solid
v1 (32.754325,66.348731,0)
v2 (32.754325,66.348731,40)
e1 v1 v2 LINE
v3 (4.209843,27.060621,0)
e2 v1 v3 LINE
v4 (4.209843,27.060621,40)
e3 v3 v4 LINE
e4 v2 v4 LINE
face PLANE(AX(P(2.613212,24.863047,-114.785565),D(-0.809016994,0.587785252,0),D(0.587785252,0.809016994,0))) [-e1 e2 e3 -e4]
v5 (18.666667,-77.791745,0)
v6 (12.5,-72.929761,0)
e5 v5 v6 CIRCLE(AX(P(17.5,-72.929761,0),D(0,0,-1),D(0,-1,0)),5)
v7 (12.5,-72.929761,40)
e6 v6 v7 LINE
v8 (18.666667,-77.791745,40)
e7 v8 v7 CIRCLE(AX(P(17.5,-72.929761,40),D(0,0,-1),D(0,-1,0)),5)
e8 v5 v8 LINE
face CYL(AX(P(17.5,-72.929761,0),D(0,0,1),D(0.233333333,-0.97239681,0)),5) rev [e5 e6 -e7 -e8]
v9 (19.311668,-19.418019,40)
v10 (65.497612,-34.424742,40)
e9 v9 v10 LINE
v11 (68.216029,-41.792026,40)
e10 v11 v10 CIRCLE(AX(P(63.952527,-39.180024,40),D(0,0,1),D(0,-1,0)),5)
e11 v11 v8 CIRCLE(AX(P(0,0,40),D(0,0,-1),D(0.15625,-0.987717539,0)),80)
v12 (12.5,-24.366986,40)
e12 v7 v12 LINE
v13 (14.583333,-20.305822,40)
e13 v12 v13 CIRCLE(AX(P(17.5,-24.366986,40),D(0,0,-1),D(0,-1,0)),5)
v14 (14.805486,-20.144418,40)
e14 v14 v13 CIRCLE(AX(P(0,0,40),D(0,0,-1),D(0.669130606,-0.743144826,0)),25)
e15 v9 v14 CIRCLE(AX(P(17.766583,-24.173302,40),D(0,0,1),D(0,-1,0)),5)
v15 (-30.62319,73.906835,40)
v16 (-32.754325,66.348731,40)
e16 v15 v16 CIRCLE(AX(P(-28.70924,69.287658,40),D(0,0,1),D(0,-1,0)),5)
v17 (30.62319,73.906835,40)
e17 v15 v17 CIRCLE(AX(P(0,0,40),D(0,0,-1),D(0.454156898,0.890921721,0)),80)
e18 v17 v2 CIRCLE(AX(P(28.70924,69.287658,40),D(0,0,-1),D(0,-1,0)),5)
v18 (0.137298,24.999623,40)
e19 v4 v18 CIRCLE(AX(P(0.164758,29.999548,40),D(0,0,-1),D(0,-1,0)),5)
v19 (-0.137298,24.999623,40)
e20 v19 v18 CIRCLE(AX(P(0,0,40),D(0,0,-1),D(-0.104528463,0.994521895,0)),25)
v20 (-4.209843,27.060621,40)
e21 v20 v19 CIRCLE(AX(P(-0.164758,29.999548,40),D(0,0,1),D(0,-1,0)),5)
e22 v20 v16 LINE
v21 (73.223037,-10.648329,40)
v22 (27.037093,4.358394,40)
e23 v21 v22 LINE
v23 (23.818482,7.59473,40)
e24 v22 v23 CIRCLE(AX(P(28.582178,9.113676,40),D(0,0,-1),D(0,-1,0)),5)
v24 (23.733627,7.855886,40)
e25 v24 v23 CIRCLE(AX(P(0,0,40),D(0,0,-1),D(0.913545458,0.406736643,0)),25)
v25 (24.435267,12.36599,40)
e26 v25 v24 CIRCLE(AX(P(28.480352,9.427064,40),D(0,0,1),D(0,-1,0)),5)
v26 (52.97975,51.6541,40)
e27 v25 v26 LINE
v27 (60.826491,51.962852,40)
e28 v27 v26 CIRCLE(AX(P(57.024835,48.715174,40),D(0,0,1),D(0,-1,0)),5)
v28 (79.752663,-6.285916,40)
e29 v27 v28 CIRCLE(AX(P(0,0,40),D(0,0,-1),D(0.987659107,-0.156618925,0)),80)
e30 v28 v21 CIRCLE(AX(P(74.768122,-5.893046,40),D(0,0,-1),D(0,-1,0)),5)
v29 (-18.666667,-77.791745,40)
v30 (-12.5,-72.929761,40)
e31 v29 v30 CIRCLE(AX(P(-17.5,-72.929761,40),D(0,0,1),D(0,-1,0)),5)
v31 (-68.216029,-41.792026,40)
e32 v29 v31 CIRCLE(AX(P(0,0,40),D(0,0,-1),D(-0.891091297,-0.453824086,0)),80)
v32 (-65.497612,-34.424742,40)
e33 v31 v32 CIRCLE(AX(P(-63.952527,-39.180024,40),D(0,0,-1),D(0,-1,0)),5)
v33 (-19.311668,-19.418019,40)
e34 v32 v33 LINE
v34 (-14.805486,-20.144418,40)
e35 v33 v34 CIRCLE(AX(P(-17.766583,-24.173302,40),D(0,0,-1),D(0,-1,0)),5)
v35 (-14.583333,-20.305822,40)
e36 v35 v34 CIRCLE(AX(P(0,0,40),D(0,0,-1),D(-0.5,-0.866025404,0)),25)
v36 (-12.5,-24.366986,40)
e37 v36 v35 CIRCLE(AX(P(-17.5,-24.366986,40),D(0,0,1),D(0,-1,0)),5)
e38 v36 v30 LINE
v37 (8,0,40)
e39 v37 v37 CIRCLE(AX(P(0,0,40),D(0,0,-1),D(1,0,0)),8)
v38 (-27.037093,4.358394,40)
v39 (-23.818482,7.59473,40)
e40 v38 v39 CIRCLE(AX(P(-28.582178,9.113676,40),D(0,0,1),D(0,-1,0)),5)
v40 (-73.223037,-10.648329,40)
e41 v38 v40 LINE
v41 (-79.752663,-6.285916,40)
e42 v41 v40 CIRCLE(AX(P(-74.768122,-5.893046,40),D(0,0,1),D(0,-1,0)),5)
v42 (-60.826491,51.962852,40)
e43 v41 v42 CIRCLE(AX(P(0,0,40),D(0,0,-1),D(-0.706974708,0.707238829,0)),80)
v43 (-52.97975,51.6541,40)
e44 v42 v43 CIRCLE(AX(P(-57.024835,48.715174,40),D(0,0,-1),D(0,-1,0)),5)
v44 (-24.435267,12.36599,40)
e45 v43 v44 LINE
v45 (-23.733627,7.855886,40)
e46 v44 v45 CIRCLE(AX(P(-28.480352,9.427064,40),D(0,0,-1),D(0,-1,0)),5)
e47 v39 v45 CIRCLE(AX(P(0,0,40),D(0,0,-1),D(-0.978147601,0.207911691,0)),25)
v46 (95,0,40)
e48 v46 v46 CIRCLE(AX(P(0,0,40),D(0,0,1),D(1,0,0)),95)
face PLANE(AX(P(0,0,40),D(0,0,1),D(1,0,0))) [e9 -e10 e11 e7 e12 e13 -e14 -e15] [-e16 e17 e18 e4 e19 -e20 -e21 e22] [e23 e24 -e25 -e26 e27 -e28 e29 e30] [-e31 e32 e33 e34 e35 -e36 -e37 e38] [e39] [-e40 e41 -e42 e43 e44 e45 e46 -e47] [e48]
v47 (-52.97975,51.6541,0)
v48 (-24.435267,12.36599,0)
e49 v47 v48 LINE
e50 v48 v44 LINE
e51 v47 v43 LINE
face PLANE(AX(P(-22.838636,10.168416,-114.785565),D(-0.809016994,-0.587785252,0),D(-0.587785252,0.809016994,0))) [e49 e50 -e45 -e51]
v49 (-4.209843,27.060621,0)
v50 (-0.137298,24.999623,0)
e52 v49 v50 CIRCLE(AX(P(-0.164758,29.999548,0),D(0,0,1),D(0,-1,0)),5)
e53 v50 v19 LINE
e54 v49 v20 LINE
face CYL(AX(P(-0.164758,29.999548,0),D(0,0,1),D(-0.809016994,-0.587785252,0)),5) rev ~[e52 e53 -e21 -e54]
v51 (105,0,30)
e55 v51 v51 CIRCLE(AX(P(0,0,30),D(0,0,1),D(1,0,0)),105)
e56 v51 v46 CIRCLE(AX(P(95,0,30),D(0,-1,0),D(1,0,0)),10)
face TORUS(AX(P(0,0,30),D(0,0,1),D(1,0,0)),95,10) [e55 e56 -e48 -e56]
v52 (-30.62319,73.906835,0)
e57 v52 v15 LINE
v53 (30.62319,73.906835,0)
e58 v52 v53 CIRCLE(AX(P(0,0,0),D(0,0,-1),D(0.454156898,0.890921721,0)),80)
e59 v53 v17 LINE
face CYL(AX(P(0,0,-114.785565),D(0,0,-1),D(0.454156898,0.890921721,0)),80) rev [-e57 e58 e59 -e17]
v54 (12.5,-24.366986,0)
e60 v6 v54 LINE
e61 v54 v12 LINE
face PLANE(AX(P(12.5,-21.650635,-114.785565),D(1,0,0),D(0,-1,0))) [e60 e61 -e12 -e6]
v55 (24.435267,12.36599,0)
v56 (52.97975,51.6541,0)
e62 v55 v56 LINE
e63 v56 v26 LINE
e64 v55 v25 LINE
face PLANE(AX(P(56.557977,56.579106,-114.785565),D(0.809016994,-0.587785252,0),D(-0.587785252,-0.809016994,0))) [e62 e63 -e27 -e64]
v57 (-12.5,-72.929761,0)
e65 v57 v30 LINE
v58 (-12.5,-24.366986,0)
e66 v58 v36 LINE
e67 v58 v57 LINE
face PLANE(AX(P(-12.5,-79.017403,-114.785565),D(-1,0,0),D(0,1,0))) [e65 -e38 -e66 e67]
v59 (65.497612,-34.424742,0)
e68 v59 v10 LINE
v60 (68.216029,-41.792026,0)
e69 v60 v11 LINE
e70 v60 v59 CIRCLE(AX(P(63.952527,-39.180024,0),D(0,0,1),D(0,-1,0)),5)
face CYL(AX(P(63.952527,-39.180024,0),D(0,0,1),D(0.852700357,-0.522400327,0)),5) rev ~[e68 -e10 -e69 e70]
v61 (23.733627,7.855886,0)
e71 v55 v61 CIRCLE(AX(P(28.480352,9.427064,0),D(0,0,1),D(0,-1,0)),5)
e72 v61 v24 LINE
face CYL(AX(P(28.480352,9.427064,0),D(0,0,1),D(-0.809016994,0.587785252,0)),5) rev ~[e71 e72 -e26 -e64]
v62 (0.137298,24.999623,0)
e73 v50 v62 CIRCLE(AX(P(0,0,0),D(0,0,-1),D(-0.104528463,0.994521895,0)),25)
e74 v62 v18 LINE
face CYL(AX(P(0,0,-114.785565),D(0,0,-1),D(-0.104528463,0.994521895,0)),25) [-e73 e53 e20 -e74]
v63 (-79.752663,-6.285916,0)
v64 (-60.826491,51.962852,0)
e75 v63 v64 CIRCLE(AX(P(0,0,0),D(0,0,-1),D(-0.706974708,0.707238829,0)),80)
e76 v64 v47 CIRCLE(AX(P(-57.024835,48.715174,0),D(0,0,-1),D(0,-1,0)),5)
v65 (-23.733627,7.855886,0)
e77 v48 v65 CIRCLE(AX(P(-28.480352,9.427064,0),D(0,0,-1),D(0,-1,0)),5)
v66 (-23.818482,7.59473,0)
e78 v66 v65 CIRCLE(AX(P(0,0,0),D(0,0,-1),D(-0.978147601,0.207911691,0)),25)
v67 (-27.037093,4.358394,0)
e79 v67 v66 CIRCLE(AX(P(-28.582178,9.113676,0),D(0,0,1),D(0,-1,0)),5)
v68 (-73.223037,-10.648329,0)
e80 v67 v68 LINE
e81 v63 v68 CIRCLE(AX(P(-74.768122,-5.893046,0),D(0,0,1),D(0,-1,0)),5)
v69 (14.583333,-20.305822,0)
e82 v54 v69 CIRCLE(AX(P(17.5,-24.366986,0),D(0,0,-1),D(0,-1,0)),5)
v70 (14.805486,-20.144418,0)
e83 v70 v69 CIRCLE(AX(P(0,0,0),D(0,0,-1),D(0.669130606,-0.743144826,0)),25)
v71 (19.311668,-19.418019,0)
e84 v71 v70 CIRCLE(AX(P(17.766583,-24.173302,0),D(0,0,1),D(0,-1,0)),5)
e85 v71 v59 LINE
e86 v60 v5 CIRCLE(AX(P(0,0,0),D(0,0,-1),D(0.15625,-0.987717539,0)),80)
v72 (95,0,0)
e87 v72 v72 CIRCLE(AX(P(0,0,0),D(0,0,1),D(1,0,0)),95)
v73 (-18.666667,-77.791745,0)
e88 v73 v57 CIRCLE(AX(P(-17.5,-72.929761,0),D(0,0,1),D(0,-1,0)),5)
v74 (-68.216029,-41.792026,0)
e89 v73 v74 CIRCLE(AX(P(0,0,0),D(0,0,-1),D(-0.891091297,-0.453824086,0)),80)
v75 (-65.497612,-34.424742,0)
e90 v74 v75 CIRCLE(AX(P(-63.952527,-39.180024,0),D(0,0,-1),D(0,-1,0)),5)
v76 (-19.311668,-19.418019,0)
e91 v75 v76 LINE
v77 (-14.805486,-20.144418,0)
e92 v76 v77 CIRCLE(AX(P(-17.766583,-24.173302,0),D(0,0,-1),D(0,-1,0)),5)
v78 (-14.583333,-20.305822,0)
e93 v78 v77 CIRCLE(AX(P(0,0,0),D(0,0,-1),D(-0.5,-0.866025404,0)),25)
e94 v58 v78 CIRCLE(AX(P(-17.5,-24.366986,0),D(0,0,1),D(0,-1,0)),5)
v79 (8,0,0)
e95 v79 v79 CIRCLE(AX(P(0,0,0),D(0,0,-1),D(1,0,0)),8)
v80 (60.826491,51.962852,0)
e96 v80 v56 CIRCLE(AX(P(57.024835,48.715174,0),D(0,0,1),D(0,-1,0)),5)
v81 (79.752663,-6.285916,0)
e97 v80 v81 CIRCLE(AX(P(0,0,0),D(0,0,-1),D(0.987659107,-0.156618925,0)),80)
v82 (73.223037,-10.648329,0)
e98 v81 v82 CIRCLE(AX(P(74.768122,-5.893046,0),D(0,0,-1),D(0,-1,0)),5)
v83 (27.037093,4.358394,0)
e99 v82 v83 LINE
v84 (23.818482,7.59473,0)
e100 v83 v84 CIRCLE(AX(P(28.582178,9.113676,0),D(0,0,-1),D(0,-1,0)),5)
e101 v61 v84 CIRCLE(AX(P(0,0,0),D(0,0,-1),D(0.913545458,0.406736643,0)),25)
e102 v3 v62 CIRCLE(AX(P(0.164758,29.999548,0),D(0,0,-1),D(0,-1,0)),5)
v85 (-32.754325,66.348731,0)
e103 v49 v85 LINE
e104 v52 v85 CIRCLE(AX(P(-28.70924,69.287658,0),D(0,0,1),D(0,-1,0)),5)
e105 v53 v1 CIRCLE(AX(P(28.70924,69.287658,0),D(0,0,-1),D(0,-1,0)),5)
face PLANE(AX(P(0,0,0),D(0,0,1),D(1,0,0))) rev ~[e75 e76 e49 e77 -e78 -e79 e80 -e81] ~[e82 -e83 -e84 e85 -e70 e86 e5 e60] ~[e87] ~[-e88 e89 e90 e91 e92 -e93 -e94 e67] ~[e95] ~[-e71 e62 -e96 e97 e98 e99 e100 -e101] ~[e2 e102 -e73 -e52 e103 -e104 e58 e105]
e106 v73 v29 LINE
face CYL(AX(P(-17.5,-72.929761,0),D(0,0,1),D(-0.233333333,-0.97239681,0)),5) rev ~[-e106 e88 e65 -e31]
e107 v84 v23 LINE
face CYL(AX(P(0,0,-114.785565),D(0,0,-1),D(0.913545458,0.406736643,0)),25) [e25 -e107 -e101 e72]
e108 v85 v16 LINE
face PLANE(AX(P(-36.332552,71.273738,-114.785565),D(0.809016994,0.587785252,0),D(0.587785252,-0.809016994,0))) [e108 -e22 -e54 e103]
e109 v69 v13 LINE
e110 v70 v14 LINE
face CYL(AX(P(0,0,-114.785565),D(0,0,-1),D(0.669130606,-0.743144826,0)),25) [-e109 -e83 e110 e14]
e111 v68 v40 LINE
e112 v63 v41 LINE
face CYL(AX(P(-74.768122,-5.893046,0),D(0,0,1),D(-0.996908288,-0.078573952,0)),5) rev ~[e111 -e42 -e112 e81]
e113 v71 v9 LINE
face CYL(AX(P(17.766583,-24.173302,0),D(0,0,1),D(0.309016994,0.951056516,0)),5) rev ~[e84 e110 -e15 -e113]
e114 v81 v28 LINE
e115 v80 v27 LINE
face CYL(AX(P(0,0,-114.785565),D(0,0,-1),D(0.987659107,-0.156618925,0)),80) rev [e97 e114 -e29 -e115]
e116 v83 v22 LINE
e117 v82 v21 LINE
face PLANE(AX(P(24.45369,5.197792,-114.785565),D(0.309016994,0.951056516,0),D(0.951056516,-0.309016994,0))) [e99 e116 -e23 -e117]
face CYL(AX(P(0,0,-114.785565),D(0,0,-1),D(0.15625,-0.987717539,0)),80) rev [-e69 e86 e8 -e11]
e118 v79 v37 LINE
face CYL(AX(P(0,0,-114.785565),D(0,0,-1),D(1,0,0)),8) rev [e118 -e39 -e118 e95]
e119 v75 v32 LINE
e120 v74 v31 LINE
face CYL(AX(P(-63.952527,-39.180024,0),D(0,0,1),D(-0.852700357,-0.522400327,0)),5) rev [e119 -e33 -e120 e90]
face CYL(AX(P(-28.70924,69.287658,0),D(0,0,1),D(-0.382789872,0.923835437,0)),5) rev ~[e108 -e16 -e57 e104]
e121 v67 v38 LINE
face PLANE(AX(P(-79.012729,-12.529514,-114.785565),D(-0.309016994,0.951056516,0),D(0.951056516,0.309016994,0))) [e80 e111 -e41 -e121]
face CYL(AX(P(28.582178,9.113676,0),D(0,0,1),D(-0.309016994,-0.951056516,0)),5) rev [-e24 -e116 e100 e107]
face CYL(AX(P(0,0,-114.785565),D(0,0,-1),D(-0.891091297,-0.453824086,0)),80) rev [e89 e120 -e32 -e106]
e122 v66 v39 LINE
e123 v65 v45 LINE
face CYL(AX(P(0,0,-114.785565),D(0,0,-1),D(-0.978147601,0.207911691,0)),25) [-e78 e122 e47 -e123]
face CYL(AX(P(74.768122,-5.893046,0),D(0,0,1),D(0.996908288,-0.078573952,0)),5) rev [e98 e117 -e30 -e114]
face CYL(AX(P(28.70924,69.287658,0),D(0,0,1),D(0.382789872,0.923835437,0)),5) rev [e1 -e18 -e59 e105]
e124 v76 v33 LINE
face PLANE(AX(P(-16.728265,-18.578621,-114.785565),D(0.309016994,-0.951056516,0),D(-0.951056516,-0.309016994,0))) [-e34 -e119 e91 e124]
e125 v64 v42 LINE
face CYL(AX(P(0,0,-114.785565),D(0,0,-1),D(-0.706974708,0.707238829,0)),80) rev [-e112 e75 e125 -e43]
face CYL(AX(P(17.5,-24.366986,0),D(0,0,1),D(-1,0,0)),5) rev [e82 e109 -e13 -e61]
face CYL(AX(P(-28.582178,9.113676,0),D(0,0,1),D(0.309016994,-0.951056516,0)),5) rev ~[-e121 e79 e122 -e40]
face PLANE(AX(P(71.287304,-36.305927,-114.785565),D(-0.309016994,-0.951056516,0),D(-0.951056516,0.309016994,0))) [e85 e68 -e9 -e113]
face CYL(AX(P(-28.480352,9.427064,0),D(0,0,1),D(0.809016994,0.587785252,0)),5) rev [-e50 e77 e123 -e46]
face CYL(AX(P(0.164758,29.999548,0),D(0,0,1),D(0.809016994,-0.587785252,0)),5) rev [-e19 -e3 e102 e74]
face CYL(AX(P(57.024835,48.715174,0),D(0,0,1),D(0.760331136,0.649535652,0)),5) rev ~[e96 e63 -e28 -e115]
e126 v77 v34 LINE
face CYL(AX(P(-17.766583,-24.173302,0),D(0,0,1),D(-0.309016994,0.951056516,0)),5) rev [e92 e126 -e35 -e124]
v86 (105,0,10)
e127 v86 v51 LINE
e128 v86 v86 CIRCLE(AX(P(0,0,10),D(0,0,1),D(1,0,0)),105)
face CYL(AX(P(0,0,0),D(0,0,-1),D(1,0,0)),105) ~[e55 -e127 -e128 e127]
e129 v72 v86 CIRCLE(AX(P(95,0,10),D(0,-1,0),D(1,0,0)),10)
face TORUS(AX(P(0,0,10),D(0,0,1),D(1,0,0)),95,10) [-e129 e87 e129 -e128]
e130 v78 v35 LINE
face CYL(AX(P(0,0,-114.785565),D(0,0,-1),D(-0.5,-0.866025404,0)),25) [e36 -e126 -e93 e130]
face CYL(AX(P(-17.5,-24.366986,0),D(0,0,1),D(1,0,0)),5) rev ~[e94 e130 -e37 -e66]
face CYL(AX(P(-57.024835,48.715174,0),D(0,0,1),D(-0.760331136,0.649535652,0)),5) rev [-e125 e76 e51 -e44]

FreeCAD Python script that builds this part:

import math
import FreeCAD as App
import Part
import Sketcher
Q = App.Units.Quantity


def edges_at(feature, points):
    """Names of the edges that pass closest to the given points."""
    edges = feature.Shape.Edges
    near = lambda p: min(range(len(edges)), key=lambda i: edges[i].distToShape(Part.Vertex(*p))[0])
    return sorted({f"Edge{near(p) + 1}" for p in points})

doc = App.newDocument("Part")
params = doc.addObject("Spreadsheet::Sheet", "Params")
for row, (alias, value) in enumerate([
    ("sketch1_diameter", "210 mm"),
    ("pad1_length", "40 mm"),
    ("sketch2_radius", "80 mm"),
    ("sketch2_radius2", "25 mm"),
    ("sketch3_diameter", "16 mm"),
    ("fillet_radius", "5 mm"),
    ("fillet2_radius", "10 mm"),
], start=1):
    params.set(f"A{row}", alias)
    params.set(f"B{row}", "=" + value)
    params.setAlias(f"B{row}", alias)

body = doc.addObject("PartDesign::Body", "Body")

sketch1 = body.newObject("Sketcher::SketchObject", "Sketch")
sketch1.AttachmentSupport = (doc.getObject("XY_Plane"), [""])
sketch1.MapMode = "FlatFace"
sketch1.addGeometry(Part.Circle(App.Vector(0, 0, 0), App.Vector(0, 0, 1), 105), False)
sketch1.addConstraint([
    Sketcher.Constraint("Coincident", 0, 3, -1, 1),
    Sketcher.Constraint("Diameter", 0, 210.0),
])
sketch1.setExpression("Constraints[1]", "Params.sketch1_diameter")
pad1 = body.newObject("PartDesign::Pad", "Pad")
pad1.Profile = sketch1
pad1.setExpression("Length", "Params.pad1_length")

sketch2 = body.newObject("Sketcher::SketchObject", "Sketch001")
sketch2.AttachmentSupport = (doc.getObject("XY_Plane"), [""])
sketch2.MapMode = "FlatFace"
sketch2.AttachmentOffset = App.Placement(App.Vector(0, 0, 40), App.Rotation())
sketch2.addGeometry([
    Part.LineSegment(App.Vector(2.613212, 24.863047, 0), App.Vector(36.332552, 71.273738, 0)),
    Part.ArcOfCircle(Part.Circle(App.Vector(0, 0, 0), App.Vector(0, 0, 1), 80), math.radians(62.989299), math.radians(117.010701)),
    Part.LineSegment(App.Vector(-36.332552, 71.273738, 0), App.Vector(-2.613212, 24.863047, 0)),
    Part.ArcOfCircle(Part.Circle(App.Vector(0, 0, 0), App.Vector(0, 0, 1), 25), math.radians(84), math.radians(96)),
    Part.LineSegment(App.Vector(24.45369, 5.197792, 0), App.Vector(79.012729, -12.529514, 0)),
    Part.ArcOfCircle(Part.Circle(App.Vector(0, 0, 0), App.Vector(0, 0, 1), 80), math.radians(-9.010701), math.radians(45.010701)),
    Part.LineSegment(App.Vector(56.557977, 56.579106, 0), App.Vector(22.838636, 10.168416, 0)),
    Part.ArcOfCircle(Part.Circle(App.Vector(0, 0, 0), App.Vector(0, 0, 1), 25), math.radians(12), math.radians(24)),
    Part.LineSegment(App.Vector(12.5, -21.650635, 0), App.Vector(12.5, -79.017403, 0)),
    Part.ArcOfCircle(Part.Circle(App.Vector(0, 0, 0), App.Vector(0, 0, 1), 80), math.radians(-81.010701), math.radians(-26.989299)),
    Part.LineSegment(App.Vector(71.287304, -36.305927, 0), App.Vector(16.728265, -18.578621, 0)),
    Part.ArcOfCircle(Part.Circle(App.Vector(0, 0, 0), App.Vector(0, 0, 1), 25), math.radians(-60), math.radians(-48)),
    Part.LineSegment(App.Vector(-16.728265, -18.578621, 0), App.Vector(-71.287304, -36.305927, 0)),
    Part.ArcOfCircle(Part.Circle(App.Vector(0, 0, 0), App.Vector(0, 0, 1), 80), math.radians(-153.010701), math.radians(-98.989299)),
    Part.LineSegment(App.Vector(-12.5, -79.017403, 0), App.Vector(-12.5, -21.650635, 0)),
    Part.ArcOfCircle(Part.Circle(App.Vector(0, 0, 0), App.Vector(0, 0, 1), 25), math.radians(-132), math.radians(-120)),
    Part.LineSegment(App.Vector(-22.838636, 10.168416, 0), App.Vector(-56.557977, 56.579106, 0)),
    Part.ArcOfCircle(Part.Circle(App.Vector(0, 0, 0), App.Vector(0, 0, 1), 80), math.radians(134.989299), math.radians(189.010701)),
    Part.LineSegment(App.Vector(-79.012729, -12.529514, 0), App.Vector(-24.45369, 5.197792, 0)),
    Part.ArcOfCircle(Part.Circle(App.Vector(0, 0, 0), App.Vector(0, 0, 1), 25), math.radians(156), math.radians(168)),
], False)
sketch2.addConstraint([
    Sketcher.Constraint("Coincident", 0, 2, 1, 1),
    Sketcher.Constraint("Coincident", 1, 2, 2, 1),
    Sketcher.Constraint("Coincident", 2, 2, 3, 2),
    Sketcher.Constraint("Coincident", 3, 1, 0, 1),
    Sketcher.Constraint("Coincident", 4, 2, 5, 1),
    Sketcher.Constraint("Coincident", 5, 2, 6, 1),
    Sketcher.Constraint("Coincident", 6, 2, 7, 2),
    Sketcher.Constraint("Coincident", 7, 1, 4, 1),
    Sketcher.Constraint("Coincident", 8, 2, 9, 1),
    Sketcher.Constraint("Coincident", 9, 2, 10, 1),
    Sketcher.Constraint("Coincident", 10, 2, 11, 2),
    Sketcher.Constraint("Coincident", 11, 1, 8, 1),
    Sketcher.Constraint("Coincident", 12, 2, 13, 1),
    Sketcher.Constraint("Coincident", 13, 2, 14, 1),
    Sketcher.Constraint("Coincident", 14, 2, 15, 2),
    Sketcher.Constraint("Coincident", 15, 1, 12, 1),
    Sketcher.Constraint("Coincident", 16, 2, 17, 1),
    Sketcher.Constraint("Coincident", 17, 2, 18, 1),
    Sketcher.Constraint("Coincident", 18, 2, 19, 2),
    Sketcher.Constraint("Coincident", 19, 1, 16, 1),
    Sketcher.Constraint("Vertical", 8),
    Sketcher.Constraint("Vertical", 14),
    Sketcher.Constraint("Coincident", 1, 3, -1, 1),
    Sketcher.Constraint("Coincident", 3, 3, -1, 1),
    Sketcher.Constraint("Coincident", 5, 3, -1, 1),
    Sketcher.Constraint("Coincident", 7, 3, -1, 1),
    Sketcher.Constraint("Coincident", 9, 3, -1, 1),
    Sketcher.Constraint("Coincident", 11, 3, -1, 1),
    Sketcher.Constraint("Coincident", 13, 3, -1, 1),
    Sketcher.Constraint("Coincident", 15, 3, -1, 1),
    Sketcher.Constraint("Coincident", 17, 3, -1, 1),
    Sketcher.Constraint("Coincident", 19, 3, -1, 1),
    Sketcher.Constraint("Equal", 1, 5),
    Sketcher.Constraint("Equal", 3, 7),
    Sketcher.Constraint("Equal", 5, 9),
    Sketcher.Constraint("Equal", 7, 11),
    Sketcher.Constraint("Equal", 9, 13),
    Sketcher.Constraint("Equal", 11, 15),
    Sketcher.Constraint("Equal", 13, 17),
    Sketcher.Constraint("Equal", 15, 19),
    Sketcher.Constraint("Parallel", 0, 6),
    Sketcher.Constraint("Parallel", 4, 10),
    Sketcher.Constraint("Parallel", 2, 16),
    Sketcher.Constraint("Parallel", 12, 18),
    Sketcher.Constraint("Horizontal", 0, 2, 1, 2),
    Sketcher.Constraint("Horizontal", 2, 2, 3, 1),
    Sketcher.Constraint("Horizontal", 9, 2, 12, 2),
    Sketcher.Constraint("Horizontal", 8, 2, 13, 2),
    Sketcher.Constraint("Horizontal", 10, 2, 15, 1),
    Sketcher.Constraint("Horizontal", 5, 2, 16, 2),
    Sketcher.Constraint("Horizontal", 4, 2, 17, 2),
    Sketcher.Constraint("Equal", 2, 4),
    Sketcher.Constraint("Equal", 4, 6),
    Sketcher.Constraint("Equal", 6, 10),
    Sketcher.Constraint("Radius", 1, 80.0),
    Sketcher.Constraint("Radius", 3, 25.0),
    Sketcher.Constraint("Angle", 0, Q("54 deg")),
    Sketcher.Constraint("Angle", 4, Q("-18 deg")),
    Sketcher.Constraint("DistanceX", 13, 2, 8, 2, 25.0),
    Sketcher.Constraint("Distance", 0, 57.366768),
])
sketch2.setExpression("Constraints[54]", "Params.sketch2_radius")
sketch2.setExpression("Constraints[55]", "Params.sketch2_radius2")
pocket1 = body.newObject("PartDesign::Pocket", "Pocket")
pocket1.Profile = sketch2
pocket1.Type = "ThroughAll"
pocket1.Midplane = True

sketch3 = body.newObject("Sketcher::SketchObject", "Sketch002")
sketch3.AttachmentSupport = (doc.getObject("XY_Plane"), [""])
sketch3.MapMode = "FlatFace"
sketch3.AttachmentOffset = App.Placement(App.Vector(0, 0, 40), App.Rotation())
sketch3.addGeometry(Part.Circle(App.Vector(0, 0, 0), App.Vector(0, 0, 1), 8), False)
sketch3.addConstraint([
    Sketcher.Constraint("Coincident", 0, 3, -1, 1),
    Sketcher.Constraint("Diameter", 0, 16.0),
])
sketch3.setExpression("Constraints[1]", "Params.sketch3_diameter")
pocket2 = body.newObject("PartDesign::Pocket", "Pocket001")
pocket2.Profile = sketch3
pocket2.Type = "ThroughAll"
pocket2.Midplane = True
doc.recompute()

fillet = body.newObject("PartDesign::Fillet", "Fillet")
fillet.Base = (pocket2, edges_at(pocket2, [
    (-79.013, -12.53, 20),
    (-56.558, 56.579, 20),
    (-22.839, 10.168, 20),
    (-24.454, 5.198, 20),
    (-12.5, -79.017, 20),
    (-71.287, -36.306, 20),
    (-16.728, -18.579, 20),
    (-12.5, -21.651, 20),
    (71.287, -36.306, 20),
    (12.5, -79.017, 20),
    (12.5, -21.651, 20),
    (16.728, -18.579, 20),
    (56.558, 56.579, 20),
    (79.013, -12.53, 20),
    (24.454, 5.198, 20),
    (22.839, 10.168, 20),
    (-36.333, 71.274, 20),
    (36.333, 71.274, 20),
    (2.613, 24.863, 20),
    (-2.613, 24.863, 20),
]))
fillet.setExpression("Radius", "Params.fillet_radius")
doc.recompute()

fillet2 = body.newObject("PartDesign::Fillet", "Fillet001")
fillet2.Base = (fillet, edges_at(fillet, [(-105, 0, 0), (-105, 0, 40)]))
fillet2.setExpression("Radius", "Params.fillet2_radius")

doc.recompute()
